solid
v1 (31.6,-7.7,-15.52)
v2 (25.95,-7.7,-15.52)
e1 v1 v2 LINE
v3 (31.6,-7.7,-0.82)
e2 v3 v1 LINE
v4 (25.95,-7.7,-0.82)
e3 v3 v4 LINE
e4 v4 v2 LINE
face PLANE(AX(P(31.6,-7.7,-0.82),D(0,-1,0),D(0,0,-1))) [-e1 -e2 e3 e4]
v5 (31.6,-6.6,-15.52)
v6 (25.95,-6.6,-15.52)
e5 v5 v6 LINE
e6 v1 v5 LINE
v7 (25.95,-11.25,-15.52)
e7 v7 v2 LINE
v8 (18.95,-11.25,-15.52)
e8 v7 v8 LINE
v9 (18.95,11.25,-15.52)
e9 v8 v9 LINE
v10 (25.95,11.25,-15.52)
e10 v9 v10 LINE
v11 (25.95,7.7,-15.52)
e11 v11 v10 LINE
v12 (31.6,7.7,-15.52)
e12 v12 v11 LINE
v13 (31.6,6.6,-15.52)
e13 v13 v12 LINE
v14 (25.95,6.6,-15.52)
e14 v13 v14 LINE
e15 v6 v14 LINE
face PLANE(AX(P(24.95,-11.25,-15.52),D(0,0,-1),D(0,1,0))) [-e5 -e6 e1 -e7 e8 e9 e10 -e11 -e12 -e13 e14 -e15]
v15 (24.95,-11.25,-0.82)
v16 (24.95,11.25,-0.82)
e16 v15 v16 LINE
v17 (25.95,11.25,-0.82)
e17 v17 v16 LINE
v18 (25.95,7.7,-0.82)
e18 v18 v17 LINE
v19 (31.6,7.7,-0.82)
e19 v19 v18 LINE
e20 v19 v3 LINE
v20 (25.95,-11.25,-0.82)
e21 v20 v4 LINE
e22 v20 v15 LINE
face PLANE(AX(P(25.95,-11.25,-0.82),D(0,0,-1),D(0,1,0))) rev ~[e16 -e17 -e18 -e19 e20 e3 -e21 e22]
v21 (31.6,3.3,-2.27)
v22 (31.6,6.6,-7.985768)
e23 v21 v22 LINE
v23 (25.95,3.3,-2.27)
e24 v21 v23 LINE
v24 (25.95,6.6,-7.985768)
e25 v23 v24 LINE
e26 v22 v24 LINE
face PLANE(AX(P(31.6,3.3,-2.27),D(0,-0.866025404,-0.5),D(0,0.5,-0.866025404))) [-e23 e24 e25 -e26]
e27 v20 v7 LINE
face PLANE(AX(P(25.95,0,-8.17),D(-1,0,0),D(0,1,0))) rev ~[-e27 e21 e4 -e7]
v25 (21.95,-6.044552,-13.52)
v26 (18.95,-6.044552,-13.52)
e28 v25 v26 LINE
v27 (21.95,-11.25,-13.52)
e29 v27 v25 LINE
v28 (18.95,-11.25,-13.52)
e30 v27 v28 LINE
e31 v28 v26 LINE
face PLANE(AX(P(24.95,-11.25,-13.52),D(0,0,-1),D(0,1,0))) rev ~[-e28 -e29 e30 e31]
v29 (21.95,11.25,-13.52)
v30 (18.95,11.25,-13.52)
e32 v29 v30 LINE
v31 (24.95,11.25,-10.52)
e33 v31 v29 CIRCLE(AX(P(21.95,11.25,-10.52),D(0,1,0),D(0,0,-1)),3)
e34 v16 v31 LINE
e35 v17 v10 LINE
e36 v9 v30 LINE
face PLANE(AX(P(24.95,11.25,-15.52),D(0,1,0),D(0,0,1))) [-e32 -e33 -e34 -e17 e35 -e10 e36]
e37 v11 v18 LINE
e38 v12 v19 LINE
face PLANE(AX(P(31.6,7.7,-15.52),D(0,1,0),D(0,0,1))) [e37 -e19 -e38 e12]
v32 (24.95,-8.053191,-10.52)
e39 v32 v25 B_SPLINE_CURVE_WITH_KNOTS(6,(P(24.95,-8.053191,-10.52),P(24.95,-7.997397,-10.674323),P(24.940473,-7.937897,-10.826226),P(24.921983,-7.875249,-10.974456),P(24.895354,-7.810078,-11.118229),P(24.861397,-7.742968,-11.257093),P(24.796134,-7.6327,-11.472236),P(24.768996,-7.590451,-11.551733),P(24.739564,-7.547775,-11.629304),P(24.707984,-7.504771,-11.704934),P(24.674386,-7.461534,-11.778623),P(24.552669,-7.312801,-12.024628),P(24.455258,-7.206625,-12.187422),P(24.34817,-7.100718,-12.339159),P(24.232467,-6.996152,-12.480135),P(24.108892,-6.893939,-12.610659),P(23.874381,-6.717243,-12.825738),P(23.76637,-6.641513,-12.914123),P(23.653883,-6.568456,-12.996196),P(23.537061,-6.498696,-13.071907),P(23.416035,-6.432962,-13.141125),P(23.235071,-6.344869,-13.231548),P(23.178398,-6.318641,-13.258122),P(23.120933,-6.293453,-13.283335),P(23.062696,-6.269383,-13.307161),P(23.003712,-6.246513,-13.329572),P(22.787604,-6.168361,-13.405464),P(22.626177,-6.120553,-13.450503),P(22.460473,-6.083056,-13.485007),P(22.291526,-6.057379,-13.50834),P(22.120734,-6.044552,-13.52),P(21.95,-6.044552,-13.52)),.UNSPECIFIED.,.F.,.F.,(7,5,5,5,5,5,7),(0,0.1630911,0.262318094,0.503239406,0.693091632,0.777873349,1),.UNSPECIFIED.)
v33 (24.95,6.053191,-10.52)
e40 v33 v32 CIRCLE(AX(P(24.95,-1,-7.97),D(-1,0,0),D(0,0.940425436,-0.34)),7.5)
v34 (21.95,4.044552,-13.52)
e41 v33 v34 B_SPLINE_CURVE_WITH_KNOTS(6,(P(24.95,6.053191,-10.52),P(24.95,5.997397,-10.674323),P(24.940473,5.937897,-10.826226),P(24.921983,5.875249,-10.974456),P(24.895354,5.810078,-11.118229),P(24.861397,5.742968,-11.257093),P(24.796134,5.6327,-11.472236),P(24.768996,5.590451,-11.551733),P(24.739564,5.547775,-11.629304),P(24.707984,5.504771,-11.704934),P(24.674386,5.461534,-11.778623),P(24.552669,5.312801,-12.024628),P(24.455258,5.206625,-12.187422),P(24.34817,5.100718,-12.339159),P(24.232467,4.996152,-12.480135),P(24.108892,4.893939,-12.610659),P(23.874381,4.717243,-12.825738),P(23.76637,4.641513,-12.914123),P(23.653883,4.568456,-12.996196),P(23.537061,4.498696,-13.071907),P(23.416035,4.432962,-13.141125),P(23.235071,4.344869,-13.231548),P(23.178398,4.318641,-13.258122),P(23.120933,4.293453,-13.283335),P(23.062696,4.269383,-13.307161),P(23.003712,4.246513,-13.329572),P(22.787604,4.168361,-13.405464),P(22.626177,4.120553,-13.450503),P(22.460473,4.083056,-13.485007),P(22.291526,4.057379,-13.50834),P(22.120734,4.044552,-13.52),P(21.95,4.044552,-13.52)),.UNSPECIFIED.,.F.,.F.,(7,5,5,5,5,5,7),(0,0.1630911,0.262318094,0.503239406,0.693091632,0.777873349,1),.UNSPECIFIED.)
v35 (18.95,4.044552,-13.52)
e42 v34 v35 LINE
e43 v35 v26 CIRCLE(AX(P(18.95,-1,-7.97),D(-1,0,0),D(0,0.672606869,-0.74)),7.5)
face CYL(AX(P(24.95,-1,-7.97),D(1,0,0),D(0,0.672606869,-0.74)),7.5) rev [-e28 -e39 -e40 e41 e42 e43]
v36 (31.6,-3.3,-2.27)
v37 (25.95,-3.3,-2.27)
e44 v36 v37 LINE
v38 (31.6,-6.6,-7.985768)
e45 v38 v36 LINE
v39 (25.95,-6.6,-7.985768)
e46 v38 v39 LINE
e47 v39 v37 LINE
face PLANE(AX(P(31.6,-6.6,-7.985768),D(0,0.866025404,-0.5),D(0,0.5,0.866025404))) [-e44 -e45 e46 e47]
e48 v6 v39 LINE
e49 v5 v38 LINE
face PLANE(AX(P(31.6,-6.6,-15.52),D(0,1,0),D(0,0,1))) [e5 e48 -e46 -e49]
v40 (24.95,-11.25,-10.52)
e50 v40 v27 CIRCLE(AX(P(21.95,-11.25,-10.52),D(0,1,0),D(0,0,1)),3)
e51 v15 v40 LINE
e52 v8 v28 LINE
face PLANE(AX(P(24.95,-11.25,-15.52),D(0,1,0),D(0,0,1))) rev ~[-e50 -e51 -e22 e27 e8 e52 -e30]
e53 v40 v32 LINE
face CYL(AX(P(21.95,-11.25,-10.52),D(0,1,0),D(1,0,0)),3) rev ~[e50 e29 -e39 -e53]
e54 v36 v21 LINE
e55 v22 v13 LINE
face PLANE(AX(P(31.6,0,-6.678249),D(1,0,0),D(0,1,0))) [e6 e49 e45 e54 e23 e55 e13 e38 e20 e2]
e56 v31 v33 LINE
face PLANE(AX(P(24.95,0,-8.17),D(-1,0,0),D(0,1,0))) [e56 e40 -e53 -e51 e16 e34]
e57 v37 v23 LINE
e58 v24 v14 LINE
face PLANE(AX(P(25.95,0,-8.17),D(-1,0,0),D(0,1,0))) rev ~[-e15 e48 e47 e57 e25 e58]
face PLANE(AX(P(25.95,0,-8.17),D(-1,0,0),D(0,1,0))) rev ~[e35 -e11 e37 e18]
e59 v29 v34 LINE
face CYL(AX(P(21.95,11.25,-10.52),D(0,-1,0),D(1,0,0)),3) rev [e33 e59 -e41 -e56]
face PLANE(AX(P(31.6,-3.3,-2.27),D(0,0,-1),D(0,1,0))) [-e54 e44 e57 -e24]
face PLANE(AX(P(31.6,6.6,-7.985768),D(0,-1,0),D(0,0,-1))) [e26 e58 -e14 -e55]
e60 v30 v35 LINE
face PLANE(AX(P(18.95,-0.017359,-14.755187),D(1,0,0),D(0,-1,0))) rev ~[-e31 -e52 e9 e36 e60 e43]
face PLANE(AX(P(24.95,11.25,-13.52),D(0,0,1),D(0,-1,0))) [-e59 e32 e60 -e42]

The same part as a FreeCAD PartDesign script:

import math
import FreeCAD as App
import Part
import Sketcher
Q = App.Units.Quantity


def edges_at(feature, points):
    """Names of the edges that pass closest to the given points."""
    edges = feature.Shape.Edges
    near = lambda p: min(range(len(edges)), key=lambda i: edges[i].distToShape(Part.Vertex(*p))[0])
    return sorted({f"Edge{near(p) + 1}" for p in points})


def add_polygon(sketch, points):
    """Adds a closed chain of lines whose ends are joined by coincident constraints."""
    first, n = sketch.GeometryCount, len(points)
    for a, b in zip(points, points[1:] + points[:1]):
        sketch.addGeometry(Part.LineSegment(App.Vector(*a, 0), App.Vector(*b, 0)), False)
    for i in range(n):
        sketch.addConstraint(Sketcher.Constraint("Coincident", first + i, 2, first + (i + 1) % n, 1))

doc = App.newDocument("Part")
body = doc.addObject("PartDesign::Body", "Body")

# Sketch on YZ plane
sketch1 = body.newObject("Sketcher::SketchObject", "Sketch")
sketch1.AttachmentSupport = (doc.getObject("YZ_Plane"), [""])
sketch1.MapMode = "FlatFace"
sketch1.AttachmentOffset = App.Placement(App.Vector(0, 0, 31.6), App.Rotation())
add_polygon(sketch1, [(-6.6, -8), (-3.3, -2.3), (3.3, -2.3), (6.6, -8), (6.6, -15.5), (7.7, -15.5), (7.7, -0.8), (-7.7, -0.8), (-7.7, -15.5), (-6.6, -15.5)])  # lines 0-9
sketch1.addConstraint([
    Sketcher.Constraint("Horizontal", 1),
    Sketcher.Constraint("Vertical", 3),
    Sketcher.Constraint("Horizontal", 4),
    Sketcher.Constraint("Vertical", 5),
    Sketcher.Constraint("Horizontal", 6),
    Sketcher.Constraint("Vertical", 7),
    Sketcher.Constraint("Horizontal", 8),
    Sketcher.Constraint("Vertical", 9),
    Sketcher.Constraint("Symmetric", 4, 2, 7, 2, -2),
    Sketcher.Constraint("Symmetric", 2, 2, 9, 2, -2),
    Sketcher.Constraint("Equal", 0, 2),
    Sketcher.Constraint("Angle", 0, Q("60 deg")),
    Sketcher.Constraint("DistanceX", 1, 1, 1, 2, 6.6),
    Sketcher.Constraint("DistanceX", 4, 1, 4, 2, 1.1),
    Sketcher.Constraint("DistanceX", 6, 2, 6, 1, 15.4),
    Sketcher.Constraint("DistanceY", 5, 1, 5, 2, 14.7),
    Sketcher.Constraint("DistanceY", 0, 2, -1, 1, 2.27),
    Sketcher.Constraint("DistanceY", 3, 2, -1, 1, 15.52),
])
pad1 = body.newObject("PartDesign::Pad", "Pad")
pad1.Profile = sketch1
pad1.Length = 5.65
pad1.Reversed = True

# Sketch on YZ plane
sketch2 = body.newObject("Sketcher::SketchObject", "Sketch001")
sketch2.AttachmentSupport = (doc.getObject("YZ_Plane"), [""])
sketch2.MapMode = "FlatFace"
sketch2.AttachmentOffset = App.Placement(App.Vector(0, 0, 25.95), App.Rotation())
add_polygon(sketch2, [(-11, -16), (-11, -1), (11, -1), (11, -16)])  # lines 0-3
sketch2.addConstraint([
    Sketcher.Constraint("Vertical", 0),
    Sketcher.Constraint("Horizontal", 1),
    Sketcher.Constraint("Vertical", 2),
    Sketcher.Constraint("Horizontal", 3),
    Sketcher.Constraint("DistanceX", 1, 1, 1, 2, 22.5),
    Sketcher.Constraint("DistanceY", 0, 1, 0, 2, 14.7),
    Sketcher.Constraint("DistanceX", 0, 2, -1, 1, 11.25),
    Sketcher.Constraint("DistanceY", 0, 2, -1, 1, 0.82),
])
pad2 = body.newObject("PartDesign::Pad", "Pad001")
pad2.Profile = sketch2
pad2.Length = 1
pad2.Reversed = True

# Sketch on YZ plane
sketch3 = body.newObject("Sketcher::SketchObject", "Sketch002")
sketch3.AttachmentSupport = (doc.getObject("YZ_Plane"), [""])
sketch3.MapMode = "FlatFace"
sketch3.AttachmentOffset = App.Placement(App.Vector(0, 0, 24.95), App.Rotation())
sketch3.addGeometry([
    Part.LineSegment(App.Vector(11.2, -15.5, 0), App.Vector(-11.2, -15.5, 0)),  # 0
    Part.LineSegment(App.Vector(-11.2, -15.5, 0), App.Vector(-11.2, -13.5, 0)),  # 1
    Part.LineSegment(App.Vector(-11.2, -13.5, 0), App.Vector(-6, -13.5, 0)),  # 2
    Part.ArcOfCircle(Part.Circle(App.Vector(-1, -8, 0), App.Vector(0, 0, 1), 7.5), math.radians(-132), math.radians(-48)),  # 3
    Part.LineSegment(App.Vector(4, -13.5, 0), App.Vector(11.2, -13.5, 0)),  # 4
    Part.LineSegment(App.Vector(11.2, -13.5, 0), App.Vector(11.2, -15.5, 0)),  # 5
], False)
sketch3.addConstraint([
    Sketcher.Constraint("Coincident", 0, 2, 1, 1),
    Sketcher.Constraint("Coincident", 1, 2, 2, 1),
    Sketcher.Constraint("Coincident", 2, 2, 3, 1),
    Sketcher.Constraint("Coincident", 3, 2, 4, 1),
    Sketcher.Constraint("Coincident", 4, 2, 5, 1),
    Sketcher.Constraint("Coincident", 5, 2, 0, 1),
    Sketcher.Constraint("Horizontal", 0),
    Sketcher.Constraint("Vertical", 1),
    Sketcher.Constraint("Horizontal", 2),
    Sketcher.Constraint("Horizontal", 4),
    Sketcher.Constraint("Vertical", 5),
    Sketcher.Constraint("Symmetric", 1, 2, 4, 2, -2),
    Sketcher.Constraint("Radius", 3, 7.5),
    Sketcher.Constraint("DistanceY", 1, 1, 1, 2, 2.0),
    Sketcher.Constraint("DistanceX", 0, 2, 0, 1, 22.5),
    Sketcher.Constraint("DistanceX", 3, 3, -1, 1, 1.0),
    Sketcher.Constraint("DistanceY", 3, 3, -1, 1, 7.97),
    Sketcher.Constraint("DistanceY", 0, 2, -1, 1, 15.52),
])
pad3 = body.newObject("PartDesign::Pad", "Pad002")
pad3.Profile = sketch3
pad3.Length = 6
pad3.Reversed = True
doc.recompute()

fillet = body.newObject("PartDesign::Fillet", "Fillet")
fillet.Base = (pad3, edges_at(pad3, [(24.95, -8.647, -13.52), (24.95, 7.647, -13.52)]))
fillet.Radius = 3

doc.recompute()
